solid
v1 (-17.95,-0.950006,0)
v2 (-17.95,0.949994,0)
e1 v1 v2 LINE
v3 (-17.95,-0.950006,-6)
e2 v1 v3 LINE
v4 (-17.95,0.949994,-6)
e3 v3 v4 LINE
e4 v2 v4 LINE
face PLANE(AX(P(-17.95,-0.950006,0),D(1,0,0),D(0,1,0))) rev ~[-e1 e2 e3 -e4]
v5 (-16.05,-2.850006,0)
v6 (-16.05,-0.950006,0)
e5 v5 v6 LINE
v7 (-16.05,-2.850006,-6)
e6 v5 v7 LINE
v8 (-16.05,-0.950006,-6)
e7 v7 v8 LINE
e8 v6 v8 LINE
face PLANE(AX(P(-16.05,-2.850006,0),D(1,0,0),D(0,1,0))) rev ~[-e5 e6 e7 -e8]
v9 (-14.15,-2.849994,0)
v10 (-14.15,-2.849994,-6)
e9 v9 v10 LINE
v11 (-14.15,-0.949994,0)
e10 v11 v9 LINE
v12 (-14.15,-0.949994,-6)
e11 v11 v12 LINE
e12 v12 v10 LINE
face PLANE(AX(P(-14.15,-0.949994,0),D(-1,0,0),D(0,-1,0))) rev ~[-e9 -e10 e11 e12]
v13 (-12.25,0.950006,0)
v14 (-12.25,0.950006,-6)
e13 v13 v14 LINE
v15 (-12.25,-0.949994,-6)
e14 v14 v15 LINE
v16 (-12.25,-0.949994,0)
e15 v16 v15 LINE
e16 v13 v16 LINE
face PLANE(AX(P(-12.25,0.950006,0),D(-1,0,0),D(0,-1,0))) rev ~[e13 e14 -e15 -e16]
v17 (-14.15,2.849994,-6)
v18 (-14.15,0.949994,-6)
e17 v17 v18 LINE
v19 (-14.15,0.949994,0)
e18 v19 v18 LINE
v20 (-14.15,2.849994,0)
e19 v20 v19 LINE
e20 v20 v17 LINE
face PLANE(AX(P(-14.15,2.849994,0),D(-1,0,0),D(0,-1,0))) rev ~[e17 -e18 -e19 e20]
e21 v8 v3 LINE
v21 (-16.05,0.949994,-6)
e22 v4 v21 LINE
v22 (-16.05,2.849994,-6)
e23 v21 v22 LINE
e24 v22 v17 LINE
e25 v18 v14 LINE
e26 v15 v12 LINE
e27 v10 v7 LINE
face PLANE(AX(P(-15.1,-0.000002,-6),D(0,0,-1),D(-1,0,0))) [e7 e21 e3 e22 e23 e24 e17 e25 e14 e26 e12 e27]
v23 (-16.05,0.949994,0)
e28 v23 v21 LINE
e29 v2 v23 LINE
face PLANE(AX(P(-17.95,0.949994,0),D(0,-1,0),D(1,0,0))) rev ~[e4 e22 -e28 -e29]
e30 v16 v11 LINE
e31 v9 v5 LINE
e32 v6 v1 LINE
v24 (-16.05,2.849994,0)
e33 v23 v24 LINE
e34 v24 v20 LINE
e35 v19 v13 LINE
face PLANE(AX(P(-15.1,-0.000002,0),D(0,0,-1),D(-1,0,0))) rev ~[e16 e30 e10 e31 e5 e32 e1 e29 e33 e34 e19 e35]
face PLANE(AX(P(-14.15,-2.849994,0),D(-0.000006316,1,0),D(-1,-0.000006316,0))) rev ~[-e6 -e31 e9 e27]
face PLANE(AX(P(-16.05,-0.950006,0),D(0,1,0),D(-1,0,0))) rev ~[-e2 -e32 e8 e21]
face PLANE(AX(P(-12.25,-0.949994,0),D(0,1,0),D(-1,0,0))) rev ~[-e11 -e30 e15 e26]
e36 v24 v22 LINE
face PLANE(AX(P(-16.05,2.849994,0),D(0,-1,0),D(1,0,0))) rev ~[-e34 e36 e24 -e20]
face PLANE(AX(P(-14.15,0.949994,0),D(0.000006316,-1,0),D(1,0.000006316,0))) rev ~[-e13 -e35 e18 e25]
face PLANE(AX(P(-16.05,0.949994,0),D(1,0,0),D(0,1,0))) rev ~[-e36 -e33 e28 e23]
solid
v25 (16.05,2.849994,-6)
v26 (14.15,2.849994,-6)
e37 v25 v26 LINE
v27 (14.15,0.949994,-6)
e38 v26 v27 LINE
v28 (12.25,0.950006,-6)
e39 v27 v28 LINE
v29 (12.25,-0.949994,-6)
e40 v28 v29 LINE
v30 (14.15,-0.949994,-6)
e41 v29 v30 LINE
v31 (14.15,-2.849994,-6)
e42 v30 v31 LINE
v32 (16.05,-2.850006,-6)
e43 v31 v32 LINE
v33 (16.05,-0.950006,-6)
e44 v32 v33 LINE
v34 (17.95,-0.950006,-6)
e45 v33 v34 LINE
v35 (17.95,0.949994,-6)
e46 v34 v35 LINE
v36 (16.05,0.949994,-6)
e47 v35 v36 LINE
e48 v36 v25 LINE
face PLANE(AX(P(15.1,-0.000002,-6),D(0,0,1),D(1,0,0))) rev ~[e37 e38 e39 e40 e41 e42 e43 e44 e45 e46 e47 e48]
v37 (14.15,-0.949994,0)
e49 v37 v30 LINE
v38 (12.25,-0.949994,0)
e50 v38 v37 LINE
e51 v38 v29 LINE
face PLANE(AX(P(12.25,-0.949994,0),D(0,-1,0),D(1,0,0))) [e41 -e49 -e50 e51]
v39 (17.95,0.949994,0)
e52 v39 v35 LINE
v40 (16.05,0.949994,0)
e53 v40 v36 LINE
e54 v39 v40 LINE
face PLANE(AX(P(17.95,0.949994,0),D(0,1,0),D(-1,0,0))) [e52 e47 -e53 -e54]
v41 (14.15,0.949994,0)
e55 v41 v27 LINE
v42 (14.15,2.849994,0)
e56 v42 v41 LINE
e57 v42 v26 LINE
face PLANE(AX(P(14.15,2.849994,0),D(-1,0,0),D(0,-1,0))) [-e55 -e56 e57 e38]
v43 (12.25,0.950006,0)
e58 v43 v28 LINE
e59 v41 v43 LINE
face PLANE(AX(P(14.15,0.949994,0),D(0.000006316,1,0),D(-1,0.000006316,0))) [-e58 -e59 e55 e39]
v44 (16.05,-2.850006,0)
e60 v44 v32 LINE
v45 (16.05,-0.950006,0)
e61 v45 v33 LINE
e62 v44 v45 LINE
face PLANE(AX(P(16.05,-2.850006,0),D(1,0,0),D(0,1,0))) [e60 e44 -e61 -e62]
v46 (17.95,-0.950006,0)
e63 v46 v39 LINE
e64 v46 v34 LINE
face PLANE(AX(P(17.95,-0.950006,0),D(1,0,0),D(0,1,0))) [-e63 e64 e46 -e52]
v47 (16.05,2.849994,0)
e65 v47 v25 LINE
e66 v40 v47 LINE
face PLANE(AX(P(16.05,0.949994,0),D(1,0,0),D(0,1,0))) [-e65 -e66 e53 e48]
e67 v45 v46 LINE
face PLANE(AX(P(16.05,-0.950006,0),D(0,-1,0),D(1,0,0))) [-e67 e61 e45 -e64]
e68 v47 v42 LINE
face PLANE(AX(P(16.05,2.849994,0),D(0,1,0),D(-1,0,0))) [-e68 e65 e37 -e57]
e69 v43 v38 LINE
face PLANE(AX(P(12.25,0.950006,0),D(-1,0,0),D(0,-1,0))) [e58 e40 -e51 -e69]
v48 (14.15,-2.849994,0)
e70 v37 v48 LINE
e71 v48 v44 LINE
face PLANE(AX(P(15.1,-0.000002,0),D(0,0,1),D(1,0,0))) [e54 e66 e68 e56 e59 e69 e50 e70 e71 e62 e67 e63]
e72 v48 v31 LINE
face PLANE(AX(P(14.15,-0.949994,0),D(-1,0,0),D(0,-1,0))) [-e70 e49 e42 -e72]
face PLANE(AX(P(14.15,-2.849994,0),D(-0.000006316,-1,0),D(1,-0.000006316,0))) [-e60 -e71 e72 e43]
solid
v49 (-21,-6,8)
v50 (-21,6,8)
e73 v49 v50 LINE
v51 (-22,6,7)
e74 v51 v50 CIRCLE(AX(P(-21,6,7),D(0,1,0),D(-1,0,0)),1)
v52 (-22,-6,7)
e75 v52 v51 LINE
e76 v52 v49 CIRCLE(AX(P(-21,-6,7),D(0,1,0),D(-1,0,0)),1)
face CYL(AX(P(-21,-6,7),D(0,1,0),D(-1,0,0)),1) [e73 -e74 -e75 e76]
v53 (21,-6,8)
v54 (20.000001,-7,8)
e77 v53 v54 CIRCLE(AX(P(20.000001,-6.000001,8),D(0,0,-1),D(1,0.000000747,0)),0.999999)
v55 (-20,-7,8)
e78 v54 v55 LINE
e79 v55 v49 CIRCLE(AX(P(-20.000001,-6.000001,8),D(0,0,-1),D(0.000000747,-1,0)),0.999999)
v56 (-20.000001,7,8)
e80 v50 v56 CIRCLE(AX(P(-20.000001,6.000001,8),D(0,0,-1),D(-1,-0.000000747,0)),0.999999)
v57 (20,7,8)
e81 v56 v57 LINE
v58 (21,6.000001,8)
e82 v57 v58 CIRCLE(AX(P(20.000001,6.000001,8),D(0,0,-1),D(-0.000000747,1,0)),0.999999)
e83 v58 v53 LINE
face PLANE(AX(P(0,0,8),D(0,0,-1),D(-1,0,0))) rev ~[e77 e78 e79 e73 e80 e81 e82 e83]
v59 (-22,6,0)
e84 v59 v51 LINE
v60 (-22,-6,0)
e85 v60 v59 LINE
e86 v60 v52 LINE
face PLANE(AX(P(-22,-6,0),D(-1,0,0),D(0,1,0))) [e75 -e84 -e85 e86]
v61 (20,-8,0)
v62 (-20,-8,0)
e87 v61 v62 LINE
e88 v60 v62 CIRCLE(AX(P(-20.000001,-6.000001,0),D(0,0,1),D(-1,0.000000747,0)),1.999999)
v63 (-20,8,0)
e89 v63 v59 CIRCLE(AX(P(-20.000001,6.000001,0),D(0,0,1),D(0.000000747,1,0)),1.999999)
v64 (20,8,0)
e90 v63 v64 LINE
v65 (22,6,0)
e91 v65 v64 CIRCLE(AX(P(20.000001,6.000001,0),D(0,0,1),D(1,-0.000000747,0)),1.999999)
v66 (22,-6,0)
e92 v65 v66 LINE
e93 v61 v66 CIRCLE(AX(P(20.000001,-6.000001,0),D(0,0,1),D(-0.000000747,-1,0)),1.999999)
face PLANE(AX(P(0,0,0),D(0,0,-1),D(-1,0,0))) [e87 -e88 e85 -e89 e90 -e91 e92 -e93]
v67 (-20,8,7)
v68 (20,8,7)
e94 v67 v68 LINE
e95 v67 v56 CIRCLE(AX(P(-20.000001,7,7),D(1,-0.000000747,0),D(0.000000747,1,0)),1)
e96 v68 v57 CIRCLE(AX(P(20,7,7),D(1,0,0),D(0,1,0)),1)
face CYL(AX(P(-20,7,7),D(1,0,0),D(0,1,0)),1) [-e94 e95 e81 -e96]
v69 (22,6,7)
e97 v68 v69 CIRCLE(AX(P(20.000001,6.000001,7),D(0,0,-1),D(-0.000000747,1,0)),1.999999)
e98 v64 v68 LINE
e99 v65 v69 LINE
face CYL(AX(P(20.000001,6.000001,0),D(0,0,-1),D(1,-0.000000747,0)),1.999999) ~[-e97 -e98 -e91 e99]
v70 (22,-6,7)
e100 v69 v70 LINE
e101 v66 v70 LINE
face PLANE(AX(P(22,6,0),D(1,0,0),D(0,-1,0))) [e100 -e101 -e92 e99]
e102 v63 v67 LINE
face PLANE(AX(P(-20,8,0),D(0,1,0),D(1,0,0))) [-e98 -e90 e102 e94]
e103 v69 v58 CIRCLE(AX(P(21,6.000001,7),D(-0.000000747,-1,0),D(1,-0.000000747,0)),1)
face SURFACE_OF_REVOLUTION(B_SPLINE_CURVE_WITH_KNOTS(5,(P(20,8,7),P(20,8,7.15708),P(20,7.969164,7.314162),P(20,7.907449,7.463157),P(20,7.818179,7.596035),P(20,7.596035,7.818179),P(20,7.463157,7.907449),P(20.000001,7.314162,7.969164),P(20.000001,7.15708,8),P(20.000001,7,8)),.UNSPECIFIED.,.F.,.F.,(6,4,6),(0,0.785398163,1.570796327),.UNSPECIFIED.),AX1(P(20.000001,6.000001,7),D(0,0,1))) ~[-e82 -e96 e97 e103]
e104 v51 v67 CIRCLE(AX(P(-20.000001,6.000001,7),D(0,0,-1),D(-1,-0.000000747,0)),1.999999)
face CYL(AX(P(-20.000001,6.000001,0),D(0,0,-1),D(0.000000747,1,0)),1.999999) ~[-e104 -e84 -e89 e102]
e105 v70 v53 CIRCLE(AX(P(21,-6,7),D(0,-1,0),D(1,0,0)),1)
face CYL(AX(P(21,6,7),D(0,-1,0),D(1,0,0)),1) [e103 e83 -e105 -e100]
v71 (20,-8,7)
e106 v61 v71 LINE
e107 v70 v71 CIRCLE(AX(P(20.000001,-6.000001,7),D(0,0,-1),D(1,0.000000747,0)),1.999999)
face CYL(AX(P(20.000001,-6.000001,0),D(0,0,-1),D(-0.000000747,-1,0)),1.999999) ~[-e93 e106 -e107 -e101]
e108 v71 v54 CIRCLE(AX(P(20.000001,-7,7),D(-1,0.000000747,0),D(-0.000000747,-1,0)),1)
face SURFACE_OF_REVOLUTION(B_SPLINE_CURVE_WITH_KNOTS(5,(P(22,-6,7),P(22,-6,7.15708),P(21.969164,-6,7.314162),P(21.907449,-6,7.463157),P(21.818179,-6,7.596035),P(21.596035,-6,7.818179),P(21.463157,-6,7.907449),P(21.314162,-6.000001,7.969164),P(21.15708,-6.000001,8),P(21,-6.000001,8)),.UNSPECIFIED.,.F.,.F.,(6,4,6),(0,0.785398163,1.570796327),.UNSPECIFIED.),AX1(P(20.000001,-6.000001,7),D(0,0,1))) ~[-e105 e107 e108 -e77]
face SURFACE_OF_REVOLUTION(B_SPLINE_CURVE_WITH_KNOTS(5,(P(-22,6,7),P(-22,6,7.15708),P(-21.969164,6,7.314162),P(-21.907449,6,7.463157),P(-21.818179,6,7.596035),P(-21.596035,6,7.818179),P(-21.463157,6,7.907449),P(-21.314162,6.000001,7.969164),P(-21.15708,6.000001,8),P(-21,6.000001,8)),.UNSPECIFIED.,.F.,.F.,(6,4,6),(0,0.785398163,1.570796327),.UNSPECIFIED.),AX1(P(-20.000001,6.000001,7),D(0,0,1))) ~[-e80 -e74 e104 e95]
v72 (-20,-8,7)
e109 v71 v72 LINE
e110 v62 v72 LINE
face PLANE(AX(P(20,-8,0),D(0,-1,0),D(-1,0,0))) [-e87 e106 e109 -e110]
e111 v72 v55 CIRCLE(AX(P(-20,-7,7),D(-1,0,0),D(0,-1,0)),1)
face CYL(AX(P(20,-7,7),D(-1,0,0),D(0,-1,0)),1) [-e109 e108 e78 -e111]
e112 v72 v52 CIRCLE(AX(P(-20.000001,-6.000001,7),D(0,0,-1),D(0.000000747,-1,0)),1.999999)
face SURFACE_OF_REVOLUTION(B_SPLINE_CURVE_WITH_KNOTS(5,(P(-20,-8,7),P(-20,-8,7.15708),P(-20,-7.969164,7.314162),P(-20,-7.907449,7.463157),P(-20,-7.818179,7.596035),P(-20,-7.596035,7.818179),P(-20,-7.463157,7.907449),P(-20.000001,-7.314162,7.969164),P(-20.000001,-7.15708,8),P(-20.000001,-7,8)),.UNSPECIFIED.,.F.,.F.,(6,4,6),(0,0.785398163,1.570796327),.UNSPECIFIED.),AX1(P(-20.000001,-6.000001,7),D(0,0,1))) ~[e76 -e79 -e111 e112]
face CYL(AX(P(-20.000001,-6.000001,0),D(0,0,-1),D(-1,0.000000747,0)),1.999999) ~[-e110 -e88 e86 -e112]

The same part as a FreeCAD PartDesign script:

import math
import FreeCAD as App
import Part
import Sketcher
from FreeCAD import Vector


def edges_at(feature, points):
    """Names of the edges that pass closest to the given points."""
    edges = feature.Shape.Edges
    near = lambda p: min(range(len(edges)), key=lambda i: edges[i].distToShape(Part.Vertex(*p))[0])
    return sorted({f"Edge{near(p) + 1}" for p in points})


def add_polygon(sketch, points):
    """Adds a closed chain of lines whose ends are joined by coincident constraints."""
    first, n = sketch.GeometryCount, len(points)
    for a, b in zip(points, points[1:] + points[:1]):
        sketch.addGeometry(Part.LineSegment(App.Vector(*a, 0), App.Vector(*b, 0)), False)
    for i in range(n):
        sketch.addConstraint(Sketcher.Constraint("Coincident", first + i, 2, first + (i + 1) % n, 1))

doc = App.newDocument("Part")
body = doc.addObject("PartDesign::Body", "Body")

sketch1 = body.newObject("Sketcher::SketchObject", "Sketch")
sketch1.AttachmentSupport = (doc.getObject("XY_Plane"), [""])
sketch1.MapMode = "FlatFace"
sketch1.addGeometry([
    Part.LineSegment(Vector(20, 8, 0), Vector(-20, 8, 0)),
    Part.ArcOfCircle(Part.Circle(Vector(-20, 6, 0), Vector(0, 0, 1), 2), math.radians(90), math.radians(180)),
    Part.LineSegment(Vector(-22, 6, 0), Vector(-22, -6, 0)),
    Part.ArcOfCircle(Part.Circle(Vector(-20, -6, 0), Vector(0, 0, 1), 2), math.radians(180), math.radians(270)),
    Part.LineSegment(Vector(-20, -8, 0), Vector(20, -8, 0)),
    Part.ArcOfCircle(Part.Circle(Vector(20, -6, 0), Vector(0, 0, 1), 2), math.radians(-90), math.radians(0)),
    Part.LineSegment(Vector(22, -6, 0), Vector(22, 6, 0)),
    Part.ArcOfCircle(Part.Circle(Vector(20, 6, 0), Vector(0, 0, 1), 2), math.radians(0), math.radians(90)),
], False)
sketch1.addConstraint([
    Sketcher.Constraint("Tangent", 0, 2, 1, 1),
    Sketcher.Constraint("Tangent", 1, 2, 2, 1),
    Sketcher.Constraint("Tangent", 2, 2, 3, 1),
    Sketcher.Constraint("Tangent", 3, 2, 4, 1),
    Sketcher.Constraint("Tangent", 4, 2, 5, 1),
    Sketcher.Constraint("Tangent", 5, 2, 6, 1),
    Sketcher.Constraint("Tangent", 6, 2, 7, 1),
    Sketcher.Constraint("Tangent", 7, 2, 0, 1),
    Sketcher.Constraint("Horizontal", 0),
    Sketcher.Constraint("Vertical", 2),
    Sketcher.Constraint("Horizontal", 4),
    Sketcher.Constraint("Vertical", 6),
    Sketcher.Constraint("Equal", 1, 3),
    Sketcher.Constraint("Equal", 3, 5),
    Sketcher.Constraint("Equal", 5, 7),
    Sketcher.Constraint("Symmetric", 1, 3, 5, 3, -1, 1),
    Sketcher.Constraint("Radius", 1, 1.999999),
    Sketcher.Constraint("DistanceX", 0, 2, 0, 1, 40.0),
    Sketcher.Constraint("DistanceY", 2, 2, 2, 1, 12.0),
])
pad1 = body.newObject("PartDesign::Pad", "Pad")
pad1.Profile = sketch1
pad1.Length = 8
doc.recompute()

fillet = body.newObject("PartDesign::Fillet", "Fillet")
fillet.Base = (pad1, edges_at(pad1, [
    (-22, 0, 8),
    (-21.414, 7.414, 8),
    (0, 8, 8),
    (21.414, 7.414, 8),
    (22, 0, 8),
    (21.414, -7.414, 8),
    (0, -8, 8),
    (-21.414, -7.414, 8),
]))
fillet.Radius = 1
body2 = doc.addObject("PartDesign::Body", "Body001")

sketch2 = body2.newObject("Sketcher::SketchObject", "Sketch001")
sketch2.AttachmentSupport = (doc.getObject("XY_Plane001"), [""])
sketch2.MapMode = "FlatFace"
add_polygon(sketch2, [(-16.1, 0.9), (-17.9, 0.9), (-17.9, -1), (-16.1, -1), (-16.1, -2.9), (-14.2, -2.8), (-14.2, -0.9), (-12.2, -0.9), (-12.2, 1), (-14.2, 0.9), (-14.2, 2.8), (-16.1, 2.8)])
sketch2.addConstraint([
    Sketcher.Constraint("Horizontal", 0),
    Sketcher.Constraint("Vertical", 1),
    Sketcher.Constraint("Horizontal", 2),
    Sketcher.Constraint("Vertical", 3),
    Sketcher.Constraint("Vertical", 5),
    Sketcher.Constraint("Horizontal", 6),
    Sketcher.Constraint("Vertical", 7),
    Sketcher.Constraint("Vertical", 9),
    Sketcher.Constraint("Horizontal", 10),
    Sketcher.Constraint("Vertical", 11),
    Sketcher.Constraint("Symmetric", 5, 2, 8, 2, -1),
    Sketcher.Constraint("Parallel", 4, 8),
    Sketcher.Constraint("Horizontal", 0, 2, 8, 2),
    Sketcher.Constraint("Vertical", 3, 2, 10, 2),
    Sketcher.Constraint("Equal", 2, 6),
    Sketcher.Constraint("Equal", 6, 10),
    Sketcher.Constraint("Equal", 10, 1),
    Sketcher.Constraint("Equal", 1, 3),
    Sketcher.Constraint("Equal", 3, 5),
    Sketcher.Constraint("Equal", 7, 9),
    Sketcher.Constraint("DistanceX", 0, 2, 0, 1, 1.9),
    Sketcher.Constraint("DistanceX", 0, 2, -1, 1, 17.95),
    Sketcher.Constraint("DistanceY", -1, 1, 0, 2, 0.949994),
])
pad2 = body2.newObject("PartDesign::Pad", "Pad001")
pad2.Profile = sketch2
pad2.Length = 6
pad2.Reversed = True
body3 = doc.addObject("PartDesign::Body", "Body002")

sketch3 = body3.newObject("Sketcher::SketchObject", "Sketch002")
sketch3.AttachmentSupport = (doc.getObject("XY_Plane002"), [""])
sketch3.MapMode = "FlatFace"
add_polygon(sketch3, [(17.9, 0.9), (16.1, 0.9), (16.1, 2.8), (14.2, 2.8), (14.2, 0.9), (12.2, 1), (12.2, -0.9), (14.2, -0.9), (14.2, -2.8), (16.1, -2.9), (16.1, -1), (17.9, -1)])
sketch3.addConstraint([
    Sketcher.Constraint("Horizontal", 0),
    Sketcher.Constraint("Vertical", 1),
    Sketcher.Constraint("Horizontal", 2),
    Sketcher.Constraint("Vertical", 3),
    Sketcher.Constraint("Vertical", 5),
    Sketcher.Constraint("Horizontal", 6),
    Sketcher.Constraint("Vertical", 7),
    Sketcher.Constraint("Vertical", 9),
    Sketcher.Constraint("Horizontal", 10),
    Sketcher.Constraint("Vertical", 11),
    Sketcher.Constraint("Symmetric", 3, 2, 6, 2, -1),
    Sketcher.Constraint("Parallel", 4, 8),
    Sketcher.Constraint("Horizontal", 0, 2, 3, 2),
    Sketcher.Constraint("Vertical", 1, 2, 8, 2),
    Sketcher.Constraint("Equal", 0, 2),
    Sketcher.Constraint("Equal", 2, 6),
    Sketcher.Constraint("Equal", 10, 1),
    Sketcher.Constraint("Equal", 3, 5),
    Sketcher.Constraint("Equal", 5, 7),
    Sketcher.Constraint("Equal", 7, 9),
    Sketcher.Constraint("DistanceX", 0, 2, 0, 1, 1.9),
    Sketcher.Constraint("DistanceX", -1, 1, 0, 2, 16.05),
    Sketcher.Constraint("DistanceY", -1, 1, 0, 2, 0.949994),
])
pad3 = body3.newObject("PartDesign::Pad", "Pad002")
pad3.Profile = sketch3
pad3.Length = 6
pad3.Reversed = True

doc.recompute()
